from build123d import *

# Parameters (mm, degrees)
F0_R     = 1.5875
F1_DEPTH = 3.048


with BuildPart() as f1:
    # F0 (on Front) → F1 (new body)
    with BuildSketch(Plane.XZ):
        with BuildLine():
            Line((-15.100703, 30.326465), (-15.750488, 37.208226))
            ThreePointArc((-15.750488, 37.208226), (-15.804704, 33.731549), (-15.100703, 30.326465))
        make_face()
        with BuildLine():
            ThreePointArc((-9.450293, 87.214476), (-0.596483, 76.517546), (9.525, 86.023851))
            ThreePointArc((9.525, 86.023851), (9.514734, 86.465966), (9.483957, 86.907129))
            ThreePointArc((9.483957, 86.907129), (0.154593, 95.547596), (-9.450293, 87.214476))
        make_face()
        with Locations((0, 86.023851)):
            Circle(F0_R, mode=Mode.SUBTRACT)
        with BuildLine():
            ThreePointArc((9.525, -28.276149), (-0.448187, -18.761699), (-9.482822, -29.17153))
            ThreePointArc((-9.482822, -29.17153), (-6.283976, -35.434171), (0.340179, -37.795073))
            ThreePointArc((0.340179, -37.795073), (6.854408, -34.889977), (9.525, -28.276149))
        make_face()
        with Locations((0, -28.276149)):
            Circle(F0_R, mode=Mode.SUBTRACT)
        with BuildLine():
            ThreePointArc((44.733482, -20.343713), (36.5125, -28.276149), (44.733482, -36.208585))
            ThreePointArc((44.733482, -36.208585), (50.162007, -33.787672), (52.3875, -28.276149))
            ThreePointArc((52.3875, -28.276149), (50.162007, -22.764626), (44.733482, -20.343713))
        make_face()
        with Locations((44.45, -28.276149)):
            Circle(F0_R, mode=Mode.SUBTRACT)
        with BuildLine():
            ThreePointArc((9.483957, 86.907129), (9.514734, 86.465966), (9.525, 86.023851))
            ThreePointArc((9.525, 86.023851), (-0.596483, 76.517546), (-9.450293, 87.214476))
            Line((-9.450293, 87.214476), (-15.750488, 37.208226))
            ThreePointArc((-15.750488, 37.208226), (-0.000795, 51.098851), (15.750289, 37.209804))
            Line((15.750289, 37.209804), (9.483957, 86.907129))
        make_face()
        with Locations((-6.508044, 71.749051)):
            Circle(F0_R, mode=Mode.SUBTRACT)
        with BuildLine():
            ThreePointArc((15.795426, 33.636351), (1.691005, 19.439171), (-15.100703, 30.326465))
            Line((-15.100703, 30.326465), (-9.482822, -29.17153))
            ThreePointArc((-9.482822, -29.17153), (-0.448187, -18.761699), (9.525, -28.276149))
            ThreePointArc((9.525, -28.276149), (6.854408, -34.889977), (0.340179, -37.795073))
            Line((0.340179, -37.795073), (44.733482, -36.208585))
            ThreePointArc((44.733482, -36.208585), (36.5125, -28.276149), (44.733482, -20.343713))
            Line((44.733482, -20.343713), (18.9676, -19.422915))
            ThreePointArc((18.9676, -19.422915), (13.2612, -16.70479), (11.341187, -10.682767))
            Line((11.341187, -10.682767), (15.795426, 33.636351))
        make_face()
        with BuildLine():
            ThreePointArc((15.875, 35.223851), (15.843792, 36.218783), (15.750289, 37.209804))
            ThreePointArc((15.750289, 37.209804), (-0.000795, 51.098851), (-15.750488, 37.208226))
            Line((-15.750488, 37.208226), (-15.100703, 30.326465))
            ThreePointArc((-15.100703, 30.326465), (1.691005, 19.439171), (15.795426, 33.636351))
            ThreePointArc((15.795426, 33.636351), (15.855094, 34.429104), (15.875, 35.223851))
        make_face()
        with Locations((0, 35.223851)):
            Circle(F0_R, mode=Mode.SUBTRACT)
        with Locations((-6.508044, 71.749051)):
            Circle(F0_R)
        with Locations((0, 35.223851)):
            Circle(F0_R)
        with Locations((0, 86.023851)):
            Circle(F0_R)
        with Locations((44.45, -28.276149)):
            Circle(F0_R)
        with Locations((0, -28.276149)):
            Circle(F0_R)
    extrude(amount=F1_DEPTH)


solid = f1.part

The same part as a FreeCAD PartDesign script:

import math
import FreeCAD as App
import Part
import Sketcher

V = App.Vector
Q = App.Units.Quantity

doc = App.newDocument("Part")
body = doc.addObject("PartDesign::Body", "Body")

# Sketch on XZ plane
sketch1 = body.newObject("Sketcher::SketchObject", "Sketch")
sketch1.AttachmentSupport = (doc.getObject("XZ_Plane"), [""])
sketch1.MapMode = "FlatFace"
sketch1.addGeometry(Part.ArcOfCircle(Part.Circle(V(-0.00002, 35.223849, 0), V(0, 0, 1), 15.87498), math.radians(172.819227), math.radians(197.968676)), False)
sketch1.addGeometry(Part.LineSegment(V(-15.100703, 30.326465, 0), V(-9.482822, -29.17153, 0)), False)
sketch1.addGeometry(Part.ArcOfCircle(Part.Circle(V(0, -28.27615, 0), V(0, 0, 1), 9.524999), math.radians(-174.606053), math.radians(-87.953283)), False)
sketch1.addGeometry(Part.LineSegment(V(0.340179, -37.795073, 0), V(44.733482, -36.208585, 0)), False)
sketch1.addGeometry(Part.ArcOfCircle(Part.Circle(V(44.450001, -28.27615, 0), V(0, 0, 1), 7.937499), math.radians(-87.953294), math.radians(0.000005)), False)
sketch1.addGeometry(Part.ArcOfCircle(Part.Circle(V(44.450001, -28.276148, 0), V(0, 0, 1), 7.937499), math.radians(-0.000005), math.radians(87.953294)), False)
sketch1.addGeometry(Part.LineSegment(V(44.733482, -20.343713, 0), V(18.9676, -19.422915, 0)), False)
sketch1.addGeometry(Part.ArcOfCircle(Part.Circle(V(19.251535, -11.477788, 0), V(0, 0, 1), 7.950199), math.radians(174.260822), math.radians(267.953292)), False)
sketch1.addGeometry(Part.LineSegment(V(11.341187, -10.682767, 0), V(15.795426, 33.636351, 0)), False)
sketch1.addGeometry(Part.ArcOfCircle(Part.Circle(V(-0.000084, 35.223851, 0), V(0, 0, 1), 15.875084), math.radians(-5.73914), math.radians(0)), False)
sketch1.addGeometry(Part.ArcOfCircle(Part.Circle(V(0.000251, 35.223864, 0), V(0, 0, 1), 15.874749), math.radians(-0.000046), math.radians(7.186564)), False)
sketch1.addGeometry(Part.LineSegment(V(15.750289, 37.209804, 0), V(9.483957, 86.907129, 0)), False)
sketch1.addGeometry(Part.ArcOfCircle(Part.Circle(V(0, 86.023851, 0), V(0, 0, 1), 9.525), math.radians(5.320833), math.radians(172.819242)), False)
sketch1.addGeometry(Part.LineSegment(V(-9.450293, 87.214476, 0), V(-15.750488, 37.208226, 0)), False)
sketch1.addConstraint(Sketcher.Constraint("Coincident", 0, 2, 1, 1))
sketch1.addConstraint(Sketcher.Constraint("Coincident", 1, 2, 2, 1))
sketch1.addConstraint(Sketcher.Constraint("Coincident", 2, 2, 3, 1))
sketch1.addConstraint(Sketcher.Constraint("Coincident", 3, 2, 4, 1))
sketch1.addConstraint(Sketcher.Constraint("Coincident", 4, 2, 5, 1))
sketch1.addConstraint(Sketcher.Constraint("Coincident", 5, 2, 6, 1))
sketch1.addConstraint(Sketcher.Constraint("Coincident", 6, 2, 7, 2))
sketch1.addConstraint(Sketcher.Constraint("Coincident", 7, 1, 8, 1))
sketch1.addConstraint(Sketcher.Constraint("Coincident", 8, 2, 9, 1))
sketch1.addConstraint(Sketcher.Constraint("Coincident", 9, 2, 10, 1))
sketch1.addConstraint(Sketcher.Constraint("Coincident", 10, 2, 11, 1))
sketch1.addConstraint(Sketcher.Constraint("Coincident", 11, 2, 12, 1))
sketch1.addConstraint(Sketcher.Constraint("Coincident", 12, 2, 13, 1))
sketch1.addConstraint(Sketcher.Constraint("Coincident", 13, 2, 0, 1))
sketch1.addConstraint(Sketcher.Constraint("Coincident", 5, 3, 4, 3))
sketch1.addConstraint(Sketcher.Constraint("PointOnObject", 2, 3, -2))
sketch1.addConstraint(Sketcher.Constraint("PointOnObject", 12, 3, -2))
sketch1.addConstraint(Sketcher.Constraint("Radius", 2, Q("0.375 in")))
sketch1.addConstraint(Sketcher.Constraint("Radius", 4, Q("0.3125 in")))
sketch1.addConstraint(Sketcher.Constraint("Radius", 7, Q("0.313 in")))
sketch1.addConstraint(Sketcher.Constraint("Radius", 12, Q("0.375 in")))
sketch1.addConstraint(Sketcher.Constraint("DistanceY", 9, 3, 12, 3, Q("2 in")))
sketch1.addConstraint(Sketcher.Constraint("DistanceY", 0, 3, 12, 3, Q("2.0000001 in")))
sketch1.addConstraint(Sketcher.Constraint("DistanceY", 2, 3, 0, 3, Q("2.5 in")))
sketch1.addConstraint(Sketcher.Constraint("DistanceY", 4, 3, 0, 3, Q("2.4999999 in")))
sketch1.addConstraint(Sketcher.Constraint("DistanceX", -1, 1, 4, 3, Q("1.75 in")))
sketch1.addConstraint(Sketcher.Constraint("DistanceX", -1, 1, 9, 2, Q("0.625 in")))
sketch1.addConstraint(Sketcher.Constraint("Radius", 0, Q("15.87498 mm")))
sketch1.addConstraint(Sketcher.Constraint("Radius", 10, Q("15.874749 mm")))
sketch1.addConstraint(Sketcher.Constraint("DistanceY", 8, 2, 0, 3, Q("0.0624999 in")))
sketch1.addConstraint(Sketcher.Constraint("DistanceY", 8, 2, 9, 2, Q("0.0625 in")))
sketch1.addConstraint(Sketcher.Constraint("DistanceY", 12, 3, 12, 2, Q("0.046875 in")))
sketch1.addConstraint(Sketcher.Constraint("DistanceY", 9, 3, 13, 2, Q("0.078125 in")))
sketch1.addConstraint(Sketcher.Constraint("Radius", 9, Q("15.875084 mm")))
sketch1.addConstraint(Sketcher.Constraint("DistanceY", 7, 3, 7, 1, Q("0.0313 in")))
sketch1.addConstraint(Sketcher.Constraint("DistanceX", -1, 1, 6, 2, Q("18.9676 mm")))
sketch1.addConstraint(Sketcher.Constraint("DistanceY", 0, 2, 10, 3, Q("4.897399 mm")))
sketch1.addConstraint(Sketcher.Constraint("DistanceX", 1, 2, 2, 2, Q("9.823001 mm")))
sketch1.addConstraint(Sketcher.Constraint("Distance", 1, Q("59.76263 mm")))
sketch1.addConstraint(Sketcher.Constraint("Distance", 6, Q("25.78233 mm")))
sketch1.addConstraint(Sketcher.Constraint("Distance", 8, Q("44.54239 mm")))
sketch1.addConstraint(Sketcher.Constraint("DistanceY", -1, 1, 0, 3, Q("35.223849 mm")))
sketch1.addConstraint(Sketcher.Constraint("DistanceY", 1, 2, -1, 1, Q("29.17153 mm")))
sketch1.addConstraint(Sketcher.Constraint("DistanceY", 4, 2, -1, 1, Q("28.276149 mm")))
sketch1.addConstraint(Sketcher.Constraint("DistanceX", -1, 1, 10, 2, Q("15.750289 mm")))
sketch1.addConstraint(Sketcher.Constraint("DistanceY", -1, 1, 11, 2, Q("86.907129 mm")))
sketch1.addConstraint(Sketcher.Constraint("DistanceX", 13, 2, -1, 1, Q("15.750488 mm")))
sketch1.addConstraint(Sketcher.Constraint("DistanceY", 5, 3, 7, 3, Q("16.79836 mm")))
sketch1.addConstraint(Sketcher.Constraint("DistanceX", 4, 3, 3, 2, Q("0.283481 mm")))
pad1 = body.newObject("PartDesign::Pad", "Pad")
pad1.Profile = sketch1
pad1.Length = Q("0.12 in")

doc.recompute()
